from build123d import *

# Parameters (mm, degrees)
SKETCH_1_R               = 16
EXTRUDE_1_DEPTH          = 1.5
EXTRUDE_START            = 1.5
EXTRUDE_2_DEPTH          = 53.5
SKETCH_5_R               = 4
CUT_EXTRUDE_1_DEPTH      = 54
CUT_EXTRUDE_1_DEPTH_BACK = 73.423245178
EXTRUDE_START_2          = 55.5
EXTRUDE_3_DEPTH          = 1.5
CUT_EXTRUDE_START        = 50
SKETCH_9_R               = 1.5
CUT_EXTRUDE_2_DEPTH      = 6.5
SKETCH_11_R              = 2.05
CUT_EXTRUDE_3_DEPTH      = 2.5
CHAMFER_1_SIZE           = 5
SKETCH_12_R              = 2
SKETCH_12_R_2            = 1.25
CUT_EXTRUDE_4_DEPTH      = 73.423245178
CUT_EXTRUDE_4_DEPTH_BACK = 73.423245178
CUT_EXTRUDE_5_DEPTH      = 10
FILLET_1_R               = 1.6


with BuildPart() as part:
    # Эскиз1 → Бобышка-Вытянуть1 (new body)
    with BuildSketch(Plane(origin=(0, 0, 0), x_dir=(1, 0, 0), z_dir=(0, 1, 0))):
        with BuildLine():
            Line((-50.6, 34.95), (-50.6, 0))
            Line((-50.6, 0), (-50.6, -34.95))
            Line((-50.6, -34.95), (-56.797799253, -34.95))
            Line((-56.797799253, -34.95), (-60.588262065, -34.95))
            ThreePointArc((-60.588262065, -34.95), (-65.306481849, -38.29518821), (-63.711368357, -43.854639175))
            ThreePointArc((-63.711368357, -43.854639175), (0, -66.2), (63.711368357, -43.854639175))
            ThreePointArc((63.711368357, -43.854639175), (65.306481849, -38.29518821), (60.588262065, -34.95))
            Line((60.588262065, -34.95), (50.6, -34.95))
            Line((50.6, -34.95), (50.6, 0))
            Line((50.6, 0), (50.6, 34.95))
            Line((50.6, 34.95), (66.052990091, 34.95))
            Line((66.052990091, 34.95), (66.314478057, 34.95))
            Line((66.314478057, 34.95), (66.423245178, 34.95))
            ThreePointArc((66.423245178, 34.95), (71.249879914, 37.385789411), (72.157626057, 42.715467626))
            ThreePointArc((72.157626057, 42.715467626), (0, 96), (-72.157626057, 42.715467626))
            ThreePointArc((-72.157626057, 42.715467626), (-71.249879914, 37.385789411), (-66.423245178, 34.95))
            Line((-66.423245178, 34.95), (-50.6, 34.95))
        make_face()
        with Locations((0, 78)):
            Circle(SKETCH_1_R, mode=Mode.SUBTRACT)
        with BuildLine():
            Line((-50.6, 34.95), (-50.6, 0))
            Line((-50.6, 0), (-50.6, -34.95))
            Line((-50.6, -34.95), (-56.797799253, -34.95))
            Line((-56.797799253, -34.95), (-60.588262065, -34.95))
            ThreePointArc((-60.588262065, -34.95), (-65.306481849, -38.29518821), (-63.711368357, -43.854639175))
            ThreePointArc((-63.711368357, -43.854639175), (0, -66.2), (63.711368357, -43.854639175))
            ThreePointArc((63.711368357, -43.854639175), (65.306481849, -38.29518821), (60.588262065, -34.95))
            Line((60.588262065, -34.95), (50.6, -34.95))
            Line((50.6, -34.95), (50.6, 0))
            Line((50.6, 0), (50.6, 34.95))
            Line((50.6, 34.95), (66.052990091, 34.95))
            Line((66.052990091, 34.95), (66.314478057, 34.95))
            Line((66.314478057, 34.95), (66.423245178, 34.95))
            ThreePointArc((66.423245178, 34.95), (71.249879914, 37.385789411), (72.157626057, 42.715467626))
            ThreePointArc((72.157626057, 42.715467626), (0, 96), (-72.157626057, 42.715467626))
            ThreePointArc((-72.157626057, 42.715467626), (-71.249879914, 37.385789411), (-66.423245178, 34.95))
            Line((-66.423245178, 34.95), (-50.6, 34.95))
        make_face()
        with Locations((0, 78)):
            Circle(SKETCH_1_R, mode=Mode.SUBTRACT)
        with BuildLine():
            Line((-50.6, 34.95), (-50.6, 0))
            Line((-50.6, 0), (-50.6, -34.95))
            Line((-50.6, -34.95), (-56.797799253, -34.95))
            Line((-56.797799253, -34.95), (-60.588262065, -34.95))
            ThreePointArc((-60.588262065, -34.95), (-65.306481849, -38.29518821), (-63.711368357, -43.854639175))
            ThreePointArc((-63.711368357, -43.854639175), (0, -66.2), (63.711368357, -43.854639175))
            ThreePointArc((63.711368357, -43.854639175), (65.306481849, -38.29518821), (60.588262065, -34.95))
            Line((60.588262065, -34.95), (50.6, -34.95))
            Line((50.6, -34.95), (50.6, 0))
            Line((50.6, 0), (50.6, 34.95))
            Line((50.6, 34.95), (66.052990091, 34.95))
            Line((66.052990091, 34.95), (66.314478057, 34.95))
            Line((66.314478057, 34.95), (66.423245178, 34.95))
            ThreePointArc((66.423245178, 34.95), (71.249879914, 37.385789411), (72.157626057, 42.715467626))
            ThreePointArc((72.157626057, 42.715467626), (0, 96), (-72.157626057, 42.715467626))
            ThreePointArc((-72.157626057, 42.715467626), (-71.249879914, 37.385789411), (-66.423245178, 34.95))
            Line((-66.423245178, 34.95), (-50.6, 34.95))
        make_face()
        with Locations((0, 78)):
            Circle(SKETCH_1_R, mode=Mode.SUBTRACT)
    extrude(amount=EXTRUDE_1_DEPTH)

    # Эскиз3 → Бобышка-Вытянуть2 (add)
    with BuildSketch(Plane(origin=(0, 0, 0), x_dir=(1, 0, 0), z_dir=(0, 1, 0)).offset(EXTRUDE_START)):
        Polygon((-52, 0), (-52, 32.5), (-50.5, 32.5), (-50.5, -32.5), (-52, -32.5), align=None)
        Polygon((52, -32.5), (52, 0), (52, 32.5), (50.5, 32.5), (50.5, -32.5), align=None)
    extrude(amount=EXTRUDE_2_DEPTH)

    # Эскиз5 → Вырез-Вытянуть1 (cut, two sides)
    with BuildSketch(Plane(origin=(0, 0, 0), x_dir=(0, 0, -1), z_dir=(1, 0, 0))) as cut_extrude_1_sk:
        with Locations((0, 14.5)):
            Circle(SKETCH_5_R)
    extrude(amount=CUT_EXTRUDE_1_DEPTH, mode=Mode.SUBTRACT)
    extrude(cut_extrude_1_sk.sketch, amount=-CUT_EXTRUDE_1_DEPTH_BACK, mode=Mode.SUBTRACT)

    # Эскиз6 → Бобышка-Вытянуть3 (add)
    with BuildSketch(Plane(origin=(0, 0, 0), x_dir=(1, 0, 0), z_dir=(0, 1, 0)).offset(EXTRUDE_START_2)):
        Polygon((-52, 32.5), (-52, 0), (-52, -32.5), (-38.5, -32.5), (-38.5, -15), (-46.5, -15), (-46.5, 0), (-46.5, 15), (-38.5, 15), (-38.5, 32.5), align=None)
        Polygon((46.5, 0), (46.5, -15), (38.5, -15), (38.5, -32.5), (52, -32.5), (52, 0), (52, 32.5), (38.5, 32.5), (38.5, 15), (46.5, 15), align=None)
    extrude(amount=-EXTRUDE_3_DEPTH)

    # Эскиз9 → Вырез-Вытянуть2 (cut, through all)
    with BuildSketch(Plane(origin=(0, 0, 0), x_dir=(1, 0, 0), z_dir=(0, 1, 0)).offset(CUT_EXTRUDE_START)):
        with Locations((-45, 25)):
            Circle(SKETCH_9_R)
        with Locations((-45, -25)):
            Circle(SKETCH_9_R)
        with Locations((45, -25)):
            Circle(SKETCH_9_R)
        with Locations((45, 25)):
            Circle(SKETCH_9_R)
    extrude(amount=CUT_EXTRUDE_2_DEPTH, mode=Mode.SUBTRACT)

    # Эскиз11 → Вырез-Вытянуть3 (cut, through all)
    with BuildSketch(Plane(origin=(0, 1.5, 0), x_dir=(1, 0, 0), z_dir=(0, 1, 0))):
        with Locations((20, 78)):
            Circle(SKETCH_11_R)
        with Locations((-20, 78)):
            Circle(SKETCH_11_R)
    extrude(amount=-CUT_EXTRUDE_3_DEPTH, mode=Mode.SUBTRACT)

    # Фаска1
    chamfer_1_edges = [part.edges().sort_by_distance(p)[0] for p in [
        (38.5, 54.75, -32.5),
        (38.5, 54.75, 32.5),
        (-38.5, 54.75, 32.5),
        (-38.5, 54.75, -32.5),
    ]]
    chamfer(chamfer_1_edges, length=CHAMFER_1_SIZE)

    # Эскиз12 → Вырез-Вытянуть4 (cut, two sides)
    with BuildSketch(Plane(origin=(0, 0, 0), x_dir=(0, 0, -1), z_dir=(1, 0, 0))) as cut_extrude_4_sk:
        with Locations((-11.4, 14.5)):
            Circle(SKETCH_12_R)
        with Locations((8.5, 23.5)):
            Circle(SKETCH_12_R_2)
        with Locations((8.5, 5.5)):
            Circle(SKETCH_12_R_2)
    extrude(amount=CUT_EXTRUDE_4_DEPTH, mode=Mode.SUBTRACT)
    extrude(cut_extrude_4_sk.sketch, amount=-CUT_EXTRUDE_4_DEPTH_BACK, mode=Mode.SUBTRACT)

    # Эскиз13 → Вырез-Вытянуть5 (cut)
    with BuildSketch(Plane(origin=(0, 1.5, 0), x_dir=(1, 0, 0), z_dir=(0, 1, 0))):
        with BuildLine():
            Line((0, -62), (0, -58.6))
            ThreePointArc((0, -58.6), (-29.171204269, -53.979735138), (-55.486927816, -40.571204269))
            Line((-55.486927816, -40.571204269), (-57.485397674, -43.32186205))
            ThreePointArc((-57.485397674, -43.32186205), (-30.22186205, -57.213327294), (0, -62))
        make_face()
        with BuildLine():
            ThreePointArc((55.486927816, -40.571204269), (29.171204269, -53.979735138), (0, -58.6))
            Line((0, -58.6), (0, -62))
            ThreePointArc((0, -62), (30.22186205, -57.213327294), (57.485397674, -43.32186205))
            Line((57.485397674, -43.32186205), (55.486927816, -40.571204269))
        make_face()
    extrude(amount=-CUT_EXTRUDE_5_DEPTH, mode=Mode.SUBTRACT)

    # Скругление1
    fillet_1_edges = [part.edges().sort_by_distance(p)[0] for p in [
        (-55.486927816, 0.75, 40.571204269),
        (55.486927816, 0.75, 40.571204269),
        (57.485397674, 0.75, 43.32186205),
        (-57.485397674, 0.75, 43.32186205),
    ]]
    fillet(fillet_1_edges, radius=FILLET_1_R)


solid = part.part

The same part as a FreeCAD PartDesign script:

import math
import FreeCAD as App
import Part
import Sketcher
Q = App.Units.Quantity


def edges_at(feature, points):
    """Names of the edges that pass closest to the given points."""
    edges = feature.Shape.Edges
    near = lambda p: min(range(len(edges)), key=lambda i: edges[i].distToShape(Part.Vertex(*p))[0])
    return sorted({f"Edge{near(p) + 1}" for p in points})

doc = App.newDocument("Part")
body = doc.addObject("PartDesign::Body", "Body")

# Sketch on XZ plane
sketch1 = body.newObject("Sketcher::SketchObject", "Sketch")
sketch1.AttachmentSupport = (doc.getObject("XZ_Plane"), [""])
sketch1.MapMode = "FlatFace"
sketch1.addGeometry([
    Part.LineSegment(App.Vector(-50.6, -34.95, 0), App.Vector(-50.6, 34.95, 0)),  # 0
    Part.LineSegment(App.Vector(-50.6, 34.95, 0), App.Vector(-60.588262, 34.95, 0)),  # 1
    Part.ArcOfCircle(Part.Circle(App.Vector(-60.588262, 39.95, 0), App.Vector(0, 0, 1), 5), math.radians(128.654394), math.radians(270)),  # 2
    Part.ArcOfCircle(Part.Circle(App.Vector(0, -35.8, 0), App.Vector(0, 0, 1), 102), math.radians(51.345606), math.radians(128.654394)),  # 3
    Part.ArcOfCircle(Part.Circle(App.Vector(60.588262, 39.95, 0), App.Vector(0, 0, 1), 5), math.radians(-90), math.radians(51.345606)),  # 4
    Part.LineSegment(App.Vector(60.588262, 34.95, 0), App.Vector(50.6, 34.95, 0)),  # 5
    Part.LineSegment(App.Vector(50.6, 34.95, 0), App.Vector(50.6, -34.95, 0)),  # 6
    Part.LineSegment(App.Vector(50.6, -34.95, 0), App.Vector(66.423245, -34.95, 0)),  # 7
    Part.ArcOfCircle(Part.Circle(App.Vector(66.423245, -40.95, 0), App.Vector(0, 0, 1), 6), math.radians(-17.112246), math.radians(90)),  # 8
    Part.ArcOfCircle(Part.Circle(App.Vector(0, -20.5, 0), App.Vector(0, 0, 1), 75.5), math.radians(-162.887754), math.radians(-17.112246)),  # 9
    Part.ArcOfCircle(Part.Circle(App.Vector(-66.423245, -40.95, 0), App.Vector(0, 0, 1), 6), math.radians(90), math.radians(197.112246)),  # 10
    Part.LineSegment(App.Vector(-66.423245, -34.95, 0), App.Vector(-50.6, -34.95, 0)),  # 11
    Part.Circle(App.Vector(0, -78, 0), App.Vector(0, 0, 1), 16),  # 12
], False)
sketch1.addConstraint([
    Sketcher.Constraint("Coincident", 0, 2, 1, 1),
    Sketcher.Constraint("Tangent", 1, 2, 2, 2),
    Sketcher.Constraint("Tangent", 2, 1, 3, 2),
    Sketcher.Constraint("Tangent", 3, 1, 4, 2),
    Sketcher.Constraint("Tangent", 4, 1, 5, 1),
    Sketcher.Constraint("Coincident", 5, 2, 6, 1),
    Sketcher.Constraint("Coincident", 6, 2, 7, 1),
    Sketcher.Constraint("Tangent", 7, 2, 8, 2),
    Sketcher.Constraint("Tangent", 8, 1, 9, 2),
    Sketcher.Constraint("Tangent", 9, 1, 10, 2),
    Sketcher.Constraint("Tangent", 10, 1, 11, 1),
    Sketcher.Constraint("Coincident", 11, 2, 0, 1),
    Sketcher.Constraint("Vertical", 0),
    Sketcher.Constraint("Horizontal", 1),
    Sketcher.Constraint("Horizontal", 5),
    Sketcher.Constraint("Vertical", 6),
    Sketcher.Constraint("Horizontal", 7),
    Sketcher.Constraint("Horizontal", 11),
    Sketcher.Constraint("Equal", 2, 4),
    Sketcher.Constraint("Equal", 8, 10),
    Sketcher.Constraint("Symmetric", 0, 2, 6, 2, -1, 1),
    Sketcher.Constraint("Symmetric", 2, 3, 4, 3, -2),
    Sketcher.Constraint("Symmetric", 8, 3, 10, 3, -2),
    Sketcher.Constraint("PointOnObject", 12, 3, -2),
    Sketcher.Constraint("Diameter", 12, Q("32 mm")),
    Sketcher.Constraint("Radius", 2, Q("5 mm")),
    Sketcher.Constraint("Radius", 3, Q("102 mm")),
    Sketcher.Constraint("Radius", 8, Q("6 mm")),
    Sketcher.Constraint("Radius", 9, Q("75.5 mm")),
    Sketcher.Constraint("DistanceY", 0, 1, 0, 2, Q("69.9 mm")),
    Sketcher.Constraint("DistanceY", 12, 3, -1, 1, Q("78 mm")),
    Sketcher.Constraint("DistanceY", 3, 3, -1, 1, Q("35.8 mm")),
    Sketcher.Constraint("DistanceY", 9, 3, -1, 1, Q("20.5 mm")),
    Sketcher.Constraint("DistanceX", 0, 2, -1, 1, Q("50.6 mm")),
])
pad1 = body.newObject("PartDesign::Pad", "Pad")
pad1.Profile = sketch1
pad1.Length = 1.5
pad1.Reversed = True

# Sketch on XZ plane
sketch2 = body.newObject("Sketcher::SketchObject", "Sketch001")
sketch2.AttachmentSupport = (doc.getObject("XZ_Plane"), [""])
sketch2.MapMode = "FlatFace"
sketch2.AttachmentOffset = App.Placement(App.Vector(0, 0, -1.5), App.Rotation())
sketch2.addGeometry([
    Part.LineSegment(App.Vector(-52, -32.5, 0), App.Vector(-52, 32.5, 0)),  # 0
    Part.LineSegment(App.Vector(-52, 32.5, 0), App.Vector(-50.5, 32.5, 0)),  # 1
    Part.LineSegment(App.Vector(-50.5, 32.5, 0), App.Vector(-50.5, -32.5, 0)),  # 2
    Part.LineSegment(App.Vector(-50.5, -32.5, 0), App.Vector(-52, -32.5, 0)),  # 3
    Part.LineSegment(App.Vector(52, 32.5, 0), App.Vector(52, -32.5, 0)),  # 4
    Part.LineSegment(App.Vector(52, -32.5, 0), App.Vector(50.5, -32.5, 0)),  # 5
    Part.LineSegment(App.Vector(50.5, -32.5, 0), App.Vector(50.5, 32.5, 0)),  # 6
    Part.LineSegment(App.Vector(50.5, 32.5, 0), App.Vector(52, 32.5, 0)),  # 7
], False)
sketch2.addConstraint([
    Sketcher.Constraint("Coincident", 0, 2, 1, 1),
    Sketcher.Constraint("Coincident", 1, 2, 2, 1),
    Sketcher.Constraint("Coincident", 2, 2, 3, 1),
    Sketcher.Constraint("Coincident", 3, 2, 0, 1),
    Sketcher.Constraint("Coincident", 4, 2, 5, 1),
    Sketcher.Constraint("Coincident", 5, 2, 6, 1),
    Sketcher.Constraint("Coincident", 6, 2, 7, 1),
    Sketcher.Constraint("Coincident", 7, 2, 4, 1),
    Sketcher.Constraint("Vertical", 0),
    Sketcher.Constraint("Horizontal", 1),
    Sketcher.Constraint("Vertical", 2),
    Sketcher.Constraint("Horizontal", 3),
    Sketcher.Constraint("Vertical", 4),
    Sketcher.Constraint("Horizontal", 5),
    Sketcher.Constraint("Vertical", 6),
    Sketcher.Constraint("Horizontal", 7),
    Sketcher.Constraint("Symmetric", 0, 2, 4, 2, -1, 1),
    Sketcher.Constraint("Symmetric", 2, 2, 6, 2, -1, 1),
    Sketcher.Constraint("Horizontal", 3, 2, 4, 2),
    Sketcher.Constraint("DistanceY", 0, 1, 0, 2, Q("65 mm")),
    Sketcher.Constraint("DistanceX", 1, 1, 1, 2, Q("1.5 mm")),
    Sketcher.Constraint("DistanceX", 0, 2, -1, 1, Q("52 mm")),
])
pad2 = body.newObject("PartDesign::Pad", "Pad001")
pad2.Profile = sketch2
pad2.Length = 53.5
pad2.Reversed = True

# Sketch on YZ plane
sketch3 = body.newObject("Sketcher::SketchObject", "Sketch002")
sketch3.AttachmentSupport = (doc.getObject("YZ_Plane"), [""])
sketch3.MapMode = "FlatFace"
sketch3.addGeometry(Part.Circle(App.Vector(14.5, 0, 0), App.Vector(0, 0, 1), 4), False)
sketch3.addConstraint([
    Sketcher.Constraint("PointOnObject", 0, 3, -1),
    Sketcher.Constraint("Diameter", 0, Q("8 mm")),
    Sketcher.Constraint("DistanceX", -1, 1, 0, 3, Q("14.5 mm")),
])
pocket1 = body.newObject("PartDesign::Pocket", "Pocket")
pocket1.Profile = sketch3
pocket1.Type = "ThroughAll"
pocket1.Midplane = True

# Sketch on XZ plane
sketch4 = body.newObject("Sketcher::SketchObject", "Sketch003")
sketch4.AttachmentSupport = (doc.getObject("XZ_Plane"), [""])
sketch4.MapMode = "FlatFace"
sketch4.AttachmentOffset = App.Placement(App.Vector(0, 0, -55.5), App.Rotation())
sketch4.addGeometry([
    Part.LineSegment(App.Vector(-52, -32.5, 0), App.Vector(-52, 32.5, 0)),  # 0
    Part.LineSegment(App.Vector(-52, 32.5, 0), App.Vector(-38.5, 32.5, 0)),  # 1
    Part.LineSegment(App.Vector(-38.5, 32.5, 0), App.Vector(-38.5, 15, 0)),  # 2
    Part.LineSegment(App.Vector(-38.5, 15, 0), App.Vector(-46.5, 15, 0)),  # 3
    Part.LineSegment(App.Vector(-46.5, 15, 0), App.Vector(-46.5, -15, 0)),  # 4
    Part.LineSegment(App.Vector(-46.5, -15, 0), App.Vector(-38.5, -15, 0)),  # 5
    Part.LineSegment(App.Vector(-38.5, -15, 0), App.Vector(-38.5, -32.5, 0)),  # 6
    Part.LineSegment(App.Vector(-38.5, -32.5, 0), App.Vector(-52, -32.5, 0)),  # 7
    Part.LineSegment(App.Vector(46.5, 15, 0), App.Vector(38.5, 15, 0)),  # 8
    Part.LineSegment(App.Vector(38.5, 15, 0), App.Vector(38.5, 32.5, 0)),  # 9
    Part.LineSegment(App.Vector(38.5, 32.5, 0), App.Vector(52, 32.5, 0)),  # 10
    Part.LineSegment(App.Vector(52, 32.5, 0), App.Vector(52, -32.5, 0)),  # 11
    Part.LineSegment(App.Vector(52, -32.5, 0), App.Vector(38.5, -32.5, 0)),  # 12
    Part.LineSegment(App.Vector(38.5, -32.5, 0), App.Vector(38.5, -15, 0)),  # 13
    Part.LineSegment(App.Vector(38.5, -15, 0), App.Vector(46.5, -15, 0)),  # 14
    Part.LineSegment(App.Vector(46.5, -15, 0), App.Vector(46.5, 15, 0)),  # 15
], False)
sketch4.addConstraint([
    Sketcher.Constraint("Coincident", 0, 2, 1, 1),
    Sketcher.Constraint("Coincident", 1, 2, 2, 1),
    Sketcher.Constraint("Coincident", 2, 2, 3, 1),
    Sketcher.Constraint("Coincident", 3, 2, 4, 1),
    Sketcher.Constraint("Coincident", 4, 2, 5, 1),
    Sketcher.Constraint("Coincident", 5, 2, 6, 1),
    Sketcher.Constraint("Coincident", 6, 2, 7, 1),
    Sketcher.Constraint("Coincident", 7, 2, 0, 1),
    Sketcher.Constraint("Coincident", 8, 2, 9, 1),
    Sketcher.Constraint("Coincident", 9, 2, 10, 1),
    Sketcher.Constraint("Coincident", 10, 2, 11, 1),
    Sketcher.Constraint("Coincident", 11, 2, 12, 1),
    Sketcher.Constraint("Coincident", 12, 2, 13, 1),
    Sketcher.Constraint("Coincident", 13, 2, 14, 1),
    Sketcher.Constraint("Coincident", 14, 2, 15, 1),
    Sketcher.Constraint("Coincident", 15, 2, 8, 1),
    Sketcher.Constraint("Vertical", 0),
    Sketcher.Constraint("Horizontal", 1),
    Sketcher.Constraint("Vertical", 2),
    Sketcher.Constraint("Horizontal", 3),
    Sketcher.Constraint("Vertical", 4),
    Sketcher.Constraint("Horizontal", 5),
    Sketcher.Constraint("Vertical", 6),
    Sketcher.Constraint("Horizontal", 7),
    Sketcher.Constraint("Horizontal", 8),
    Sketcher.Constraint("Vertical", 9),
    Sketcher.Constraint("Horizontal", 10),
    Sketcher.Constraint("Vertical", 11),
    Sketcher.Constraint("Horizontal", 12),
    Sketcher.Constraint("Vertical", 13),
    Sketcher.Constraint("Horizontal", 14),
    Sketcher.Constraint("Vertical", 15),
    Sketcher.Constraint("Symmetric", 5, 2, 8, 2, -1, 1),
    Sketcher.Constraint("Symmetric", 7, 2, 10, 2, -1, 1),
    Sketcher.Constraint("Symmetric", 1, 2, 12, 2, -1, 1),
    Sketcher.Constraint("Symmetric", 3, 2, 14, 2, -1, 1),
    Sketcher.Constraint("Symmetric", 2, 2, 8, 2, -2),
    Sketcher.Constraint("Horizontal", 1, 2, 9, 2),
    Sketcher.Constraint("DistanceX", 3, 2, 3, 1, Q("8 mm")),
    Sketcher.Constraint("DistanceY", 0, 1, 0, 2, Q("65 mm")),
    Sketcher.Constraint("DistanceY", 4, 2, 4, 1, Q("30 mm")),
    Sketcher.Constraint("DistanceX", 1, 1, 1, 2, Q("13.5 mm")),
    Sketcher.Constraint("DistanceX", 0, 2, -1, 1, Q("52 mm")),
])
pad3 = body.newObject("PartDesign::Pad", "Pad002")
pad3.Profile = sketch4
pad3.Length = 1.5

# Sketch on XZ plane
sketch5 = body.newObject("Sketcher::SketchObject", "Sketch004")
sketch5.AttachmentSupport = (doc.getObject("XZ_Plane"), [""])
sketch5.MapMode = "FlatFace"
sketch5.AttachmentOffset = App.Placement(App.Vector(0, 0, -50), App.Rotation())
sketch5.addGeometry([
    Part.Circle(App.Vector(-45, -25, 0), App.Vector(0, 0, 1), 1.5),
    Part.Circle(App.Vector(-45, 25, 0), App.Vector(0, 0, 1), 1.5),
    Part.Circle(App.Vector(45, 25, 0), App.Vector(0, 0, 1), 1.5),
    Part.Circle(App.Vector(45, -25, 0), App.Vector(0, 0, 1), 1.5),
], False)
sketch5.addConstraint([
    Sketcher.Constraint("Equal", 0, 1),
    Sketcher.Constraint("Equal", 1, 2),
    Sketcher.Constraint("Equal", 2, 3),
    Sketcher.Constraint("Symmetric", 0, 3, 2, 3, -1, 1),
    Sketcher.Constraint("Symmetric", 1, 3, 3, 3, -1, 1),
    Sketcher.Constraint("Symmetric", 1, 3, 2, 3, -2),
    Sketcher.Constraint("Diameter", 0, Q("3 mm")),
    Sketcher.Constraint("DistanceX", 0, 3, -1, 1, Q("45 mm")),
    Sketcher.Constraint("DistanceY", 0, 3, -1, 1, Q("25 mm")),
])
pocket2 = body.newObject("PartDesign::Pocket", "Pocket001")
pocket2.Profile = sketch5
pocket2.Type = "ThroughAll"

# Sketch on XZ plane
sketch6 = body.newObject("Sketcher::SketchObject", "Sketch005")
sketch6.AttachmentSupport = (doc.getObject("XZ_Plane"), [""])
sketch6.MapMode = "FlatFace"
sketch6.AttachmentOffset = App.Placement(App.Vector(0, 0, -1.5), App.Rotation())
sketch6.addGeometry([
    Part.Circle(App.Vector(20, -78, 0), App.Vector(0, 0, 1), 2.05),
    Part.Circle(App.Vector(-20, -78, 0), App.Vector(0, 0, 1), 2.05),
], False)
sketch6.addConstraint([
    Sketcher.Constraint("Equal", 0, 1),
    Sketcher.Constraint("Symmetric", 0, 3, 1, 3, -2),
    Sketcher.Constraint("Diameter", 0, Q("4.1 mm")),
    Sketcher.Constraint("DistanceX", -1, 1, 0, 3, Q("20 mm")),
    Sketcher.Constraint("DistanceY", 0, 3, -1, 1, Q("78 mm")),
])
pocket3 = body.newObject("PartDesign::Pocket", "Pocket002")
pocket3.Profile = sketch6
pocket3.Type = "ThroughAll"
pocket3.Reversed = True
doc.recompute()

chamfer = body.newObject("PartDesign::Chamfer", "Chamfer")
chamfer.Base = (pocket3, edges_at(pocket3, [
    (38.5, 54.75, -32.5),
    (38.5, 54.75, 32.5),
    (-38.5, 54.75, 32.5),
    (-38.5, 54.75, -32.5),
]))
chamfer.Size = 5

# Sketch on YZ plane
sketch7 = body.newObject("Sketcher::SketchObject", "Sketch006")
sketch7.AttachmentSupport = (doc.getObject("YZ_Plane"), [""])
sketch7.MapMode = "FlatFace"
sketch7.addGeometry([
    Part.Circle(App.Vector(14.5, 11.4, 0), App.Vector(0, 0, 1), 2),
    Part.Circle(App.Vector(23.5, -8.5, 0), App.Vector(0, 0, 1), 1.25),
    Part.Circle(App.Vector(5.5, -8.5, 0), App.Vector(0, 0, 1), 1.25),
], False)
sketch7.addConstraint([
    Sketcher.Constraint("Equal", 1, 2),
    Sketcher.Constraint("Horizontal", 1, 3, 2, 3),
    Sketcher.Constraint("Diameter", 0, Q("4 mm")),
    Sketcher.Constraint("Diameter", 1, Q("2.5 mm")),
    Sketcher.Constraint("DistanceX", 0, 3, 1, 3, Q("9 mm")),
    Sketcher.Constraint("DistanceX", 2, 3, 1, 3, Q("18 mm")),
    Sketcher.Constraint("DistanceX", -1, 1, 0, 3, Q("14.5 mm")),
    Sketcher.Constraint("DistanceY", -1, 1, 0, 3, Q("11.4 mm")),
    Sketcher.Constraint("DistanceY", 1, 3, -1, 1, Q("8.5 mm")),
])
pocket4 = body.newObject("PartDesign::Pocket", "Pocket003")
pocket4.Profile = sketch7
pocket4.Type = "ThroughAll"
pocket4.Midplane = True

# Sketch on XZ plane
sketch8 = body.newObject("Sketcher::SketchObject", "Sketch007")
sketch8.AttachmentSupport = (doc.getObject("XZ_Plane"), [""])
sketch8.MapMode = "FlatFace"
sketch8.AttachmentOffset = App.Placement(App.Vector(0, 0, -1.5), App.Rotation())
sketch8.addGeometry([
    Part.ArcOfCircle(Part.Circle(App.Vector(0, -35.8, 0), App.Vector(0, 0, 1), 94.4), math.radians(90), math.radians(126)),  # 0
    Part.LineSegment(App.Vector(-55.486928, 40.571204, 0), App.Vector(-57.485398, 43.321862, 0)),  # 1
    Part.ArcOfCircle(Part.Circle(App.Vector(0, -35.8, 0), App.Vector(0, 0, 1), 97.8), math.radians(90), math.radians(126)),  # 2
    Part.ArcOfCircle(Part.Circle(App.Vector(0, -35.8, 0), App.Vector(0, 0, 1), 97.8), math.radians(54), math.radians(90)),  # 3
    Part.LineSegment(App.Vector(57.485398, 43.321862, 0), App.Vector(55.486928, 40.571204, 0)),  # 4
    Part.ArcOfCircle(Part.Circle(App.Vector(0, -35.8, 0), App.Vector(0, 0, 1), 94.4), math.radians(54), math.radians(90)),  # 5
], False)
sketch8.addConstraint([
    Sketcher.Constraint("Coincident", 0, 2, 1, 1),
    Sketcher.Constraint("Coincident", 1, 2, 2, 2),
    Sketcher.Constraint("Tangent", 2, 1, 3, 2),
    Sketcher.Constraint("Coincident", 3, 1, 4, 1),
    Sketcher.Constraint("Coincident", 4, 2, 5, 1),
    Sketcher.Constraint("Tangent", 5, 2, 0, 1),
    Sketcher.Constraint("Coincident", 2, 3, 0, 3),
    Sketcher.Constraint("Equal", 2, 3),
    Sketcher.Constraint("Equal", 0, 5),
    Sketcher.Constraint("Symmetric", 1, 2, 3, 1, -2),
    Sketcher.Constraint("PointOnObject", 2, 1, -2),
    Sketcher.Constraint("PointOnObject", 5, 2, -2),
    Sketcher.Constraint("Horizontal", 0, 2, 4, 2),
    Sketcher.Constraint("Radius", 0, Q("94.4 mm")),
    Sketcher.Constraint("Radius", 2, Q("97.8 mm")),
    Sketcher.Constraint("Angle", 1, Q("126 deg")),
    Sketcher.Constraint("DistanceY", -1, 1, 2, 1, Q("62 mm")),
    Sketcher.Constraint("DistanceX", 0, 2, -1, 1, Q("55.486928 mm")),
])
pocket5 = body.newObject("PartDesign::Pocket", "Pocket004")
pocket5.Profile = sketch8
pocket5.Length = 10
pocket5.Reversed = True
doc.recompute()

fillet = body.newObject("PartDesign::Fillet", "Fillet")
fillet.Base = (pocket5, edges_at(pocket5, [
    (-55.487, 0.75, 40.571),
    (55.487, 0.75, 40.571),
    (57.485, 0.75, 43.322),
    (-57.485, 0.75, 43.322),
]))
fillet.Radius = 1.6

doc.recompute()
